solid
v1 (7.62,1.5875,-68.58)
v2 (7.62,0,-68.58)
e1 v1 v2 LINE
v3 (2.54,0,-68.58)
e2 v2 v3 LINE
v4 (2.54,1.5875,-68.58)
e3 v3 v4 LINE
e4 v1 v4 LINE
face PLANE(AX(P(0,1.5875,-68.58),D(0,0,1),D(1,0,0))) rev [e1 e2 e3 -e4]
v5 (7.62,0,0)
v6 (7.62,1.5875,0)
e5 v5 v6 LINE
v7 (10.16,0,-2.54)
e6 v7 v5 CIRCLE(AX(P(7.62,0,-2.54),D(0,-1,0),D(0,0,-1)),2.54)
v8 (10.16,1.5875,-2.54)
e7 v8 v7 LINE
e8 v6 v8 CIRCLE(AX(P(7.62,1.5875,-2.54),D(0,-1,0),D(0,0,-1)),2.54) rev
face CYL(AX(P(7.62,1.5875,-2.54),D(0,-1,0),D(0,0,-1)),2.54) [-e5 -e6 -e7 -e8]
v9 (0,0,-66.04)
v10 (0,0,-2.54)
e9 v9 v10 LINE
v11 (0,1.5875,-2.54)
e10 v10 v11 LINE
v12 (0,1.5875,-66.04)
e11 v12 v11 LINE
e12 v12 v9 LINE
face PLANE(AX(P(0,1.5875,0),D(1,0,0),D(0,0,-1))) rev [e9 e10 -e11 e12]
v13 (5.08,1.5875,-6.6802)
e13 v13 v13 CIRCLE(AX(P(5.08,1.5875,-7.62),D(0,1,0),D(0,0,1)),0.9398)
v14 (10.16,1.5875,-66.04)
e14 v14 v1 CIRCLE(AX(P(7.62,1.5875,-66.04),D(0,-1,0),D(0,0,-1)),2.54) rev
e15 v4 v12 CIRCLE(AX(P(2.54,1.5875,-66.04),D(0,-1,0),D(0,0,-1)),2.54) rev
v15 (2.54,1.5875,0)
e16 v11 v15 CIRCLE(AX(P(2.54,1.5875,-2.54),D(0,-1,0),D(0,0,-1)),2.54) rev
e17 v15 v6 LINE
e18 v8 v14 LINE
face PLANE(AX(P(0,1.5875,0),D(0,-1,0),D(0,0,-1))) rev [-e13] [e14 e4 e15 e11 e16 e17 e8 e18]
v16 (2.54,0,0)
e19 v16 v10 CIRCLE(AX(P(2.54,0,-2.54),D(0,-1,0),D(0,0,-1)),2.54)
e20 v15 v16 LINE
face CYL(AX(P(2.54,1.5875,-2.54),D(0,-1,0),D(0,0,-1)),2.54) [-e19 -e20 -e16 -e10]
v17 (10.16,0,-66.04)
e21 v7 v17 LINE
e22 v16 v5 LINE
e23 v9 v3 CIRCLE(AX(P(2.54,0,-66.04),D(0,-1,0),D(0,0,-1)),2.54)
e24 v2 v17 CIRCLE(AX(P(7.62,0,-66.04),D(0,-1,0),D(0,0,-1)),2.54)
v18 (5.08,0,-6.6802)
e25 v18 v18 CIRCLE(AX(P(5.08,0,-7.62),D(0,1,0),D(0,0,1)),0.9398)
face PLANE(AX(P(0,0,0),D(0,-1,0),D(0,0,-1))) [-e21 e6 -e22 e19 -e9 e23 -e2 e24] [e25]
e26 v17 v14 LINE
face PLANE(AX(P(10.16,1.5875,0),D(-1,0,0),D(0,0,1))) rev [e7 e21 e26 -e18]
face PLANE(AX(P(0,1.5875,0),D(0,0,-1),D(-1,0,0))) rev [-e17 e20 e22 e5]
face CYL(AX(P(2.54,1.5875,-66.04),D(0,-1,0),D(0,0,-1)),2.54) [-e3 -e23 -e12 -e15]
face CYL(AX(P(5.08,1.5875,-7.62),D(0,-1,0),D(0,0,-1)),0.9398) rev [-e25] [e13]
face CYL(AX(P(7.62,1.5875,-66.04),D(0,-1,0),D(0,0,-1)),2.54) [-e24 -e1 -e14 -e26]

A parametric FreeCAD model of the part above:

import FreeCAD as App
import Part
import Sketcher
from FreeCAD import Vector
Q = App.Units.Quantity


def edges_at(feature, points):
    """Names of the edges that pass closest to the given points."""
    edges = feature.Shape.Edges
    near = lambda p: min(range(len(edges)), key=lambda i: edges[i].distToShape(Part.Vertex(*p))[0])
    return sorted({f"Edge{near(p) + 1}" for p in points})

doc = App.newDocument("Part")
body = doc.addObject("PartDesign::Body", "Body")

# Sketch on XZ plane
sketch1 = doc.addObject("Sketcher::SketchObject", "Sketch")
body.addObject(sketch1)
sketch1.AttachmentSupport = (doc.XZ_Plane, [""])
sketch1.MapMode = "FlatFace"
sketch1.addGeometry(Part.LineSegment(Vector(0, -68.58, 0), Vector(0, 0, 0)), False)
sketch1.addGeometry(Part.LineSegment(Vector(0, 0, 0), Vector(10.16, 0, 0)), False)
sketch1.addGeometry(Part.LineSegment(Vector(10.16, 0, 0), Vector(10.16, -68.58, 0)), False)
sketch1.addGeometry(Part.LineSegment(Vector(10.16, -68.58, 0), Vector(0, -68.58, 0)), False)
sketch1.addGeometry(Part.Circle(Vector(5.08, -7.62, 0), Vector(0, 0, 1), 0.9398), False)
sketch1.addConstraint(Sketcher.Constraint("Coincident", 0, 2, 1, 1))
sketch1.addConstraint(Sketcher.Constraint("Coincident", 1, 2, 2, 1))
sketch1.addConstraint(Sketcher.Constraint("Coincident", 2, 2, 3, 1))
sketch1.addConstraint(Sketcher.Constraint("Coincident", 3, 2, 0, 1))
sketch1.addConstraint(Sketcher.Constraint("Vertical", 0))
sketch1.addConstraint(Sketcher.Constraint("Horizontal", 1))
sketch1.addConstraint(Sketcher.Constraint("Vertical", 2))
sketch1.addConstraint(Sketcher.Constraint("Horizontal", 3))
sketch1.addConstraint(Sketcher.Constraint("Coincident", 0, 2, -1, 1))
sketch1.addConstraint(Sketcher.Constraint("Diameter", 4, Q("0.074 in")))
sketch1.addConstraint(Sketcher.Constraint("DistanceX", 1, 1, 1, 2, Q("0.4 in")))
sketch1.addConstraint(Sketcher.Constraint("DistanceY", 0, 1, 0, 2, Q("2.7 in")))
sketch1.addConstraint(Sketcher.Constraint("DistanceX", -1, 1, 4, 3, Q("0.2 in")))
sketch1.addConstraint(Sketcher.Constraint("DistanceY", 4, 3, -1, 1, Q("0.3 in")))
pad1 = doc.addObject("PartDesign::Pad", "Pad")
body.addObject(pad1)
pad1.Profile = sketch1
pad1.Length = Q("0.0625 in")
pad1.Reversed = True
doc.recompute()

fillet = doc.addObject("PartDesign::Fillet", "Fillet")
body.addObject(fillet)
fillet.Base = (pad1, edges_at(pad1, [
    (0, 0.794, -68.58),
    (10.16, 0.794, -68.58),
    (10.16, 0.794, 0),
    (0, 0.794, 0),
]))
fillet.Radius = Q("0.1 in")

doc.recompute()
